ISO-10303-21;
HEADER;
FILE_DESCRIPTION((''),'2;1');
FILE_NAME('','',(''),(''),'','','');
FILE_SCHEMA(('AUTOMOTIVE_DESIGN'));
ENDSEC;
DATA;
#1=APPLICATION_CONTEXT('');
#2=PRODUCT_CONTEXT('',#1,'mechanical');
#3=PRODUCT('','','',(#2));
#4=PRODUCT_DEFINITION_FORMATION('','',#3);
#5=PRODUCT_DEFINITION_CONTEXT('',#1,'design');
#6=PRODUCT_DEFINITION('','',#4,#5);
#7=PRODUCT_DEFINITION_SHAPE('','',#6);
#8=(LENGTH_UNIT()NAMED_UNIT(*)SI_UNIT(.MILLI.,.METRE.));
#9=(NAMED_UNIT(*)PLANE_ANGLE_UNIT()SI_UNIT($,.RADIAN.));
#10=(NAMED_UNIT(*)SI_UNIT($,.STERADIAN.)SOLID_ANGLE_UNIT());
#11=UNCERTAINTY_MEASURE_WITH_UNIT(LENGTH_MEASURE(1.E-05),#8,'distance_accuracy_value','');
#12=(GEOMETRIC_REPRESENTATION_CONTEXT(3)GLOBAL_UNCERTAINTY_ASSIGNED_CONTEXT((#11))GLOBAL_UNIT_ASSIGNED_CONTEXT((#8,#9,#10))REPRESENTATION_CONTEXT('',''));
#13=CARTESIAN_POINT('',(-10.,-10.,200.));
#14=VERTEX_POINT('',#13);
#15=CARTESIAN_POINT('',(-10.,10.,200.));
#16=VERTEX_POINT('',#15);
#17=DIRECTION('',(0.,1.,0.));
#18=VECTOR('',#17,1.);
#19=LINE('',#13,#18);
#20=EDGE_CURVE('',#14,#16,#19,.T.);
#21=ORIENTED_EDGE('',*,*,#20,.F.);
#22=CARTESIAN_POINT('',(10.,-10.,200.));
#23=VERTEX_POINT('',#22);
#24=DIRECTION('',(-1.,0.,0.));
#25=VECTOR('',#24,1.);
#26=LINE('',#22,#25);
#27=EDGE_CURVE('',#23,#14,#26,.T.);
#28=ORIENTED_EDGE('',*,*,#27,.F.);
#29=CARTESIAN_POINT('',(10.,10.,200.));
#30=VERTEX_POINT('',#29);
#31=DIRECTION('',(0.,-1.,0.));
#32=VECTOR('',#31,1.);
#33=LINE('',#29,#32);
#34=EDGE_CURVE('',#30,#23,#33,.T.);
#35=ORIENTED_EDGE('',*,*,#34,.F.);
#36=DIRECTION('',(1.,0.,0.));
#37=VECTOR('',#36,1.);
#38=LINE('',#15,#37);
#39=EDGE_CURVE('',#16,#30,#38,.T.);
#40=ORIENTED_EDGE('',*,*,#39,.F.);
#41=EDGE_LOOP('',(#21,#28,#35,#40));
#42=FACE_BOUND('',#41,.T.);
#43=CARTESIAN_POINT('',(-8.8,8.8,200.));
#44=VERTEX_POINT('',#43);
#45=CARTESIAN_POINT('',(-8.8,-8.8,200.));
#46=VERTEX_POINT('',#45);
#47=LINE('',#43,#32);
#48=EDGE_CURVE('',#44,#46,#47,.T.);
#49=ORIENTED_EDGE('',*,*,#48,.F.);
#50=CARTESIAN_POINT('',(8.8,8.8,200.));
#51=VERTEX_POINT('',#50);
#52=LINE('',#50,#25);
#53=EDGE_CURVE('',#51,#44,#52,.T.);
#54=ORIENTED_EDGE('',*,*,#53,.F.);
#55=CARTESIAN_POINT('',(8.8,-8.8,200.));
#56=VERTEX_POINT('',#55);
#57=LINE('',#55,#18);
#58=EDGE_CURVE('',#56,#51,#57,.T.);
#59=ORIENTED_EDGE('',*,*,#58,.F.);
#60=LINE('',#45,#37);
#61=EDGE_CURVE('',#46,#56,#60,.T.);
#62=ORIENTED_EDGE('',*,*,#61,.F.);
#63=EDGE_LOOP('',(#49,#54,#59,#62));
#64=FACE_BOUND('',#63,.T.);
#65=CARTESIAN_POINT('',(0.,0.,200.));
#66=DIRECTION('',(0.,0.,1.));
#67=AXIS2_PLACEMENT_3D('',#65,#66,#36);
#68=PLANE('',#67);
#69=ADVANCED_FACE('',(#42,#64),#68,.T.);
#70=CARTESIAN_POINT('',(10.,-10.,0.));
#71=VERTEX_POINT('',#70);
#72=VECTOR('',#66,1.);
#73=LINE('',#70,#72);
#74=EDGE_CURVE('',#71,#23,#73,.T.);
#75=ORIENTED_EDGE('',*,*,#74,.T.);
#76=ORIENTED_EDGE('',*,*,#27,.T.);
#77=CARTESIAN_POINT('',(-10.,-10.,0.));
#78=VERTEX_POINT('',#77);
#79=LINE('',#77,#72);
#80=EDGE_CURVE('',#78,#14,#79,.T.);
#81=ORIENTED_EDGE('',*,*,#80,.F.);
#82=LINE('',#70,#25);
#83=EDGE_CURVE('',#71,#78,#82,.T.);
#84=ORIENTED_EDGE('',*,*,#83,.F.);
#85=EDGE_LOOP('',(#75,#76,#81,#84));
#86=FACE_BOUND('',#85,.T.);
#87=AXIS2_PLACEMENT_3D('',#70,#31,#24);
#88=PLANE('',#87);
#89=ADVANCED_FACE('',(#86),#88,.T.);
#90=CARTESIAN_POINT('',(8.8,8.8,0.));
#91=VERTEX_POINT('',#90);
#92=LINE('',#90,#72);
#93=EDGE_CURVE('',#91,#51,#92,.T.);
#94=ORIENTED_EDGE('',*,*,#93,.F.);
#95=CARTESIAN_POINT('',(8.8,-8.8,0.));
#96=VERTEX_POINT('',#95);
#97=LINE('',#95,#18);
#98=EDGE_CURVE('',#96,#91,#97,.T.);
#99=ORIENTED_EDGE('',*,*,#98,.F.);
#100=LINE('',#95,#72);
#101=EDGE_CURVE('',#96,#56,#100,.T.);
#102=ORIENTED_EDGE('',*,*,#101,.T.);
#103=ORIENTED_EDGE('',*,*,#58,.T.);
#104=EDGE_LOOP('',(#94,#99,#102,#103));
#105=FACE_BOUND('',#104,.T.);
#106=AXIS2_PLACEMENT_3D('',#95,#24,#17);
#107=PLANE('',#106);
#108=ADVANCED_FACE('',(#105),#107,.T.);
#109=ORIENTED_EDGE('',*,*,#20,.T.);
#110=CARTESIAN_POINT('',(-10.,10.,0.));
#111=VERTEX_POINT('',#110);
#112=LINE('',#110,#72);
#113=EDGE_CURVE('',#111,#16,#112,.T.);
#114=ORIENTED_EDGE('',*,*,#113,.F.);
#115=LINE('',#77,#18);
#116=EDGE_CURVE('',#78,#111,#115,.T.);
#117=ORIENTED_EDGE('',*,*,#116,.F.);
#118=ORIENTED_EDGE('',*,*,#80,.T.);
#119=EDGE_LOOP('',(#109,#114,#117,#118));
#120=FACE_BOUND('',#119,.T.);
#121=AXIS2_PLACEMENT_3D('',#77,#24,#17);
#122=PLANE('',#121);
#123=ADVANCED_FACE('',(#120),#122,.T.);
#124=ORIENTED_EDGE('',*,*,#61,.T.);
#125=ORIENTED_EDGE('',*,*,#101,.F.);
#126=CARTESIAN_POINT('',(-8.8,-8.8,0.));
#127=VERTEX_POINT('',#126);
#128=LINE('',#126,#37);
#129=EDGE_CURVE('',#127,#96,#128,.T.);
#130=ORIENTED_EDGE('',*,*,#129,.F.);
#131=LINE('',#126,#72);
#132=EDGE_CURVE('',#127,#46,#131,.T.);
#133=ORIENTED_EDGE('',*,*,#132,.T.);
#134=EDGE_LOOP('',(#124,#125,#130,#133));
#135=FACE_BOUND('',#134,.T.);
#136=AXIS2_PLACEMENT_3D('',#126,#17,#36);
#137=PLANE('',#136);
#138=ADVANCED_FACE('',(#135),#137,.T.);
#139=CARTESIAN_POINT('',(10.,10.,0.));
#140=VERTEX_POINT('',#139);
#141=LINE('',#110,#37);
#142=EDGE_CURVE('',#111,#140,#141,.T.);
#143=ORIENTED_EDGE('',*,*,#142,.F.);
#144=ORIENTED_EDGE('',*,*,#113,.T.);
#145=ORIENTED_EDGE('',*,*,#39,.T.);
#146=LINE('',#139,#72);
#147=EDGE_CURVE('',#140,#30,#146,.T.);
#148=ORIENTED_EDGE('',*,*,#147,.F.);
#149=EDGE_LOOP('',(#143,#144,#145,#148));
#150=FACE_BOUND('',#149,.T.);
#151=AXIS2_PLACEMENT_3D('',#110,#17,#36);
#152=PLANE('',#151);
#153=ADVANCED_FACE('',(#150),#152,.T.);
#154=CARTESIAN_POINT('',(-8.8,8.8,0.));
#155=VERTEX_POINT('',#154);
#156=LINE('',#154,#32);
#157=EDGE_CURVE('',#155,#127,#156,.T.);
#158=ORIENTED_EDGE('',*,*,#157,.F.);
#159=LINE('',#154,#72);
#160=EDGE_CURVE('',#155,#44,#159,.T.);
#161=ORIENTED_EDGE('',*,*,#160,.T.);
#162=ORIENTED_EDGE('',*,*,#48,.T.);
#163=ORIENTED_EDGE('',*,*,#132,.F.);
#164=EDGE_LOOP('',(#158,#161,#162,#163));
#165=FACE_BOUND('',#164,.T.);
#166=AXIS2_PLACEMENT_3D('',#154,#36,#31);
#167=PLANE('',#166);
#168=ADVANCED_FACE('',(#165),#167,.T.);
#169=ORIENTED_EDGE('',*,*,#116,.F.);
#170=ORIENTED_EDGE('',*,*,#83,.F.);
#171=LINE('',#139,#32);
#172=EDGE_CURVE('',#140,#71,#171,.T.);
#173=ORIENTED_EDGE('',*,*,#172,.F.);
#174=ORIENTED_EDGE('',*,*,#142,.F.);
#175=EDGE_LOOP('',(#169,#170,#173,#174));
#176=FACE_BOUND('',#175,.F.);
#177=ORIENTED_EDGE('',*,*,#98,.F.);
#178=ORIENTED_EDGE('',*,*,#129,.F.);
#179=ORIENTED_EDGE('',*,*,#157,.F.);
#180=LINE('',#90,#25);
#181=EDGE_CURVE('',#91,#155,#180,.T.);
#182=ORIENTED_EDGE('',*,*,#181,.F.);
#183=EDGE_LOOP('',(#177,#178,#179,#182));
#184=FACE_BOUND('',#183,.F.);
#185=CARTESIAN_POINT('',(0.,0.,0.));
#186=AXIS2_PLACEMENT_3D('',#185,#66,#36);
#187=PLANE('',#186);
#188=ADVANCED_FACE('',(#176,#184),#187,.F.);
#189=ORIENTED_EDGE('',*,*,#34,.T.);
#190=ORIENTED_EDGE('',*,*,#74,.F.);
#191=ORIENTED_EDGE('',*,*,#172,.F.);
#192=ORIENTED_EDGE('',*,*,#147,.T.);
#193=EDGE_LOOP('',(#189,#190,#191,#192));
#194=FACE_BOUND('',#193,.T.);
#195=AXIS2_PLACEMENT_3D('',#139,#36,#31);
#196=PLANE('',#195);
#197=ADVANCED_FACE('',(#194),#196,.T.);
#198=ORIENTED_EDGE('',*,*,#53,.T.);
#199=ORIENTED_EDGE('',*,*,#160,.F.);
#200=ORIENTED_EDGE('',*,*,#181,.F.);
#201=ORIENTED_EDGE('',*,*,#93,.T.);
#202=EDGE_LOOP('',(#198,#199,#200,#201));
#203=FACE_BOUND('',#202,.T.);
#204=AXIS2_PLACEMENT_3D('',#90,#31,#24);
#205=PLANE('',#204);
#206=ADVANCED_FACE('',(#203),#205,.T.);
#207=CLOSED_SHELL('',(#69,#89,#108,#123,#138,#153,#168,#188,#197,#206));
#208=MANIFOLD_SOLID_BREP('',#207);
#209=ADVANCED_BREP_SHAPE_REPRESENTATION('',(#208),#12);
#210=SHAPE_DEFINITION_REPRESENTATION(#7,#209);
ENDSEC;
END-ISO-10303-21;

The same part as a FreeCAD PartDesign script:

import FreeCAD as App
import Part
import Sketcher

doc = App.newDocument("Part")
params = doc.addObject("Spreadsheet::Sheet", "Params")
for row, (alias, value) in enumerate([
    ("sketch1_width", "20 mm"),
    ("sketch1_width2", "17.6 mm"),
    ("pad1_length", "200 mm"),
], start=1):
    params.set(f"A{row}", alias)
    params.set(f"B{row}", "=" + value)
    params.setAlias(f"B{row}", alias)

body = doc.addObject("PartDesign::Body", "Body")

# Sketch on XY plane
sketch1 = doc.addObject("Sketcher::SketchObject", "Sketch")
body.addObject(sketch1)
sketch1.AttachmentSupport = (doc.XY_Plane, [""])
sketch1.MapMode = "FlatFace"
sketch1.addGeometry([
    Part.LineSegment(App.Vector(10, 10, 0), App.Vector(-10, 10, 0)),  # 0
    Part.LineSegment(App.Vector(-10, 10, 0), App.Vector(-10, -10, 0)),  # 1
    Part.LineSegment(App.Vector(-10, -10, 0), App.Vector(10, -10, 0)),  # 2
    Part.LineSegment(App.Vector(10, -10, 0), App.Vector(10, 10, 0)),  # 3
    Part.LineSegment(App.Vector(-9, 9, 0), App.Vector(9, 9, 0)),  # 4
    Part.LineSegment(App.Vector(9, 9, 0), App.Vector(9, -9, 0)),  # 5
    Part.LineSegment(App.Vector(9, -9, 0), App.Vector(-9, -9, 0)),  # 6
    Part.LineSegment(App.Vector(-9, -9, 0), App.Vector(-9, 9, 0)),  # 7
], False)
sketch1.addConstraint([
    Sketcher.Constraint("Coincident", 0, 2, 1, 1),
    Sketcher.Constraint("Coincident", 1, 2, 2, 1),
    Sketcher.Constraint("Coincident", 2, 2, 3, 1),
    Sketcher.Constraint("Coincident", 3, 2, 0, 1),
    Sketcher.Constraint("Coincident", 4, 2, 5, 1),
    Sketcher.Constraint("Coincident", 5, 2, 6, 1),
    Sketcher.Constraint("Coincident", 6, 2, 7, 1),
    Sketcher.Constraint("Coincident", 7, 2, 4, 1),
    Sketcher.Constraint("Horizontal", 0),
    Sketcher.Constraint("Vertical", 1),
    Sketcher.Constraint("Horizontal", 2),
    Sketcher.Constraint("Vertical", 3),
    Sketcher.Constraint("Horizontal", 4),
    Sketcher.Constraint("Vertical", 5),
    Sketcher.Constraint("Horizontal", 6),
    Sketcher.Constraint("Vertical", 7),
    Sketcher.Constraint("Symmetric", 0, 2, 2, 2, -1, 1),
    Sketcher.Constraint("Symmetric", 4, 2, 6, 2, -1, 1),
    Sketcher.Constraint("Equal", 2, 1),
    Sketcher.Constraint("Equal", 6, 5),
    Sketcher.Constraint("DistanceX", 0, 2, 0, 1, 20.0),
    Sketcher.Constraint("DistanceX", 4, 1, 4, 2, 17.6),
])
sketch1.setExpression("Constraints[20]", "Params.sketch1_width")
sketch1.setExpression("Constraints[21]", "Params.sketch1_width2")
pad1 = doc.addObject("PartDesign::Pad", "Pad")
body.addObject(pad1)
pad1.Profile = sketch1
pad1.setExpression("Length", "Params.pad1_length")

doc.recompute()
